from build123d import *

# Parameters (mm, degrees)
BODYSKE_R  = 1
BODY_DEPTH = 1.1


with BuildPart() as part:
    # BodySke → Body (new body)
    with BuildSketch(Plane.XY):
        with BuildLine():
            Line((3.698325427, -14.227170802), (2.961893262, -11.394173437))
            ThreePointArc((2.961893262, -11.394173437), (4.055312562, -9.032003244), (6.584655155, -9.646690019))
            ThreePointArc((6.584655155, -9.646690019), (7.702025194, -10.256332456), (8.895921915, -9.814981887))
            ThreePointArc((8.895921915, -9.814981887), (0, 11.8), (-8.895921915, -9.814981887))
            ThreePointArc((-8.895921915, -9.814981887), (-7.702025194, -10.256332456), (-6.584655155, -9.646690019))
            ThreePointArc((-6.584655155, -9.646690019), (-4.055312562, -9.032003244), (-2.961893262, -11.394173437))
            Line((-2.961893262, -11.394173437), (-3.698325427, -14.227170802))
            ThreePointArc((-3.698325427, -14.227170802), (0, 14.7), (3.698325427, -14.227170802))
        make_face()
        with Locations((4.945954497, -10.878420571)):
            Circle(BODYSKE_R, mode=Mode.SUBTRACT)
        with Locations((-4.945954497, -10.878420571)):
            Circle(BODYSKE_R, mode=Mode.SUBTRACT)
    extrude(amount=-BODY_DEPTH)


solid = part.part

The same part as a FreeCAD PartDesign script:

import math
import FreeCAD as App
import Part
import Sketcher
Q = App.Units.Quantity

doc = App.newDocument("Part")
body = doc.addObject("PartDesign::Body", "Body")

sketch1 = body.newObject("Sketcher::SketchObject", "Sketch")
sketch1.AttachmentSupport = (doc.getObject("XY_Plane"), [""])
sketch1.MapMode = "FlatFace"
sketch1.addGeometry(Part.LineSegment(App.Vector(3, -11.4, 0), App.Vector(3.7, -14.2, 0)), False)
sketch1.addGeometry(Part.ArcOfCircle(Part.Circle(App.Vector(0, 0, 0), App.Vector(0, 0, 1), 14.7), math.radians(-75), math.radians(255)), False)
sketch1.addGeometry(Part.LineSegment(App.Vector(-3.7, -14.2, 0), App.Vector(-3, -11.4, 0)), False)
sketch1.addGeometry(Part.ArcOfCircle(Part.Circle(App.Vector(-4.9, -10.9, 0), App.Vector(0, 0, 1), 2), math.radians(-15), math.radians(143)), False)
sketch1.addGeometry(Part.ArcOfCircle(Part.Circle(App.Vector(-7.8, -8.7, 0), App.Vector(0, 0, 1), 1.5), math.radians(-135), math.radians(-37)), False)
sketch1.addGeometry(Part.ArcOfCircle(Part.Circle(App.Vector(0, -0.8, 0), App.Vector(0, 0, 1), 12.6), math.radians(-45), math.radians(225)), False)
sketch1.addGeometry(Part.ArcOfCircle(Part.Circle(App.Vector(7.8, -8.7, 0), App.Vector(0, 0, 1), 1.5), math.radians(-143), math.radians(-45)), False)
sketch1.addGeometry(Part.ArcOfCircle(Part.Circle(App.Vector(4.9, -10.9, 0), App.Vector(0, 0, 1), 2), math.radians(37), math.radians(195)), False)
sketch1.addGeometry(Part.Circle(App.Vector(4.9, -10.9, 0), App.Vector(0, 0, 1), 1), False)
sketch1.addGeometry(Part.Circle(App.Vector(-4.9, -10.9, 0), App.Vector(0, 0, 1), 1), False)
sketch1.addConstraint(Sketcher.Constraint("Coincident", 0, 2, 1, 1))
sketch1.addConstraint(Sketcher.Constraint("Coincident", 1, 2, 2, 1))
sketch1.addConstraint(Sketcher.Constraint("Tangent", 2, 2, 3, 1))
sketch1.addConstraint(Sketcher.Constraint("Tangent", 3, 2, 4, 2))
sketch1.addConstraint(Sketcher.Constraint("Tangent", 4, 1, 5, 2))
sketch1.addConstraint(Sketcher.Constraint("Tangent", 5, 1, 6, 2))
sketch1.addConstraint(Sketcher.Constraint("Tangent", 6, 1, 7, 1))
sketch1.addConstraint(Sketcher.Constraint("Tangent", 7, 2, 0, 1))
sketch1.addConstraint(Sketcher.Constraint("Coincident", 1, 3, -1, 1))
sketch1.addConstraint(Sketcher.Constraint("Coincident", 8, 3, 7, 3))
sketch1.addConstraint(Sketcher.Constraint("Coincident", 9, 3, 3, 3))
sketch1.addConstraint(Sketcher.Constraint("Equal", 4, 6))
sketch1.addConstraint(Sketcher.Constraint("Equal", 3, 7))
sketch1.addConstraint(Sketcher.Constraint("Equal", 8, 9))
sketch1.addConstraint(Sketcher.Constraint("Symmetric", 4, 3, 6, 3, -2))
sketch1.addConstraint(Sketcher.Constraint("Symmetric", 2, 2, 7, 2, -2))
sketch1.addConstraint(Sketcher.Constraint("Diameter", 8, Q("2 mm")))
sketch1.addConstraint(Sketcher.Constraint("Radius", 1, Q("14.7 mm")))
sketch1.addConstraint(Sketcher.Constraint("Radius", 3, Q("2.05 mm")))
sketch1.addConstraint(Sketcher.Constraint("Radius", 4, Q("1.5375 mm")))
sketch1.addConstraint(Sketcher.Constraint("Radius", 5, Q("12.638106 mm")))
sketch1.addConstraint(Sketcher.Constraint("DistanceX", 3, 2, 9, 3, Q("1.638701 mm")))
sketch1.addConstraint(Sketcher.Constraint("Distance", 0, Q("2.92715 mm")))
sketch1.addConstraint(Sketcher.Constraint("DistanceY", 3, 3, -1, 1, Q("10.878421 mm")))
sketch1.addConstraint(Sketcher.Constraint("DistanceX", 4, 3, -1, 1, Q("7.813681 mm")))
pad1 = body.newObject("PartDesign::Pad", "Pad")
pad1.Profile = sketch1
pad1.Length = 1.1
pad1.Reversed = True

doc.recompute()
